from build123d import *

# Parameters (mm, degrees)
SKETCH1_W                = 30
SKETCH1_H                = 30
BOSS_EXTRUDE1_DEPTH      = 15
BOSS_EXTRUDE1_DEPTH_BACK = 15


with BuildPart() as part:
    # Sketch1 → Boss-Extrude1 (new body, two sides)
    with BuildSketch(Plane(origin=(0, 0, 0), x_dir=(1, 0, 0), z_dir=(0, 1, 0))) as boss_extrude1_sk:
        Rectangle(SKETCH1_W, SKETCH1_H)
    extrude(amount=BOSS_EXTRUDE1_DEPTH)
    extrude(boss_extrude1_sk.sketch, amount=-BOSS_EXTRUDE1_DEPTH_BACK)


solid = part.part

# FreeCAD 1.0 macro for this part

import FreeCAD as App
import Part
import Sketcher

V = App.Vector


def add_polygon(sketch, points):
    """Adds a closed chain of lines whose ends are joined by coincident constraints."""
    first, n = sketch.GeometryCount, len(points)
    for a, b in zip(points, points[1:] + points[:1]):
        sketch.addGeometry(Part.LineSegment(App.Vector(*a, 0), App.Vector(*b, 0)), False)
    for i in range(n):
        sketch.addConstraint(Sketcher.Constraint("Coincident", first + i, 2, first + (i + 1) % n, 1))

doc = App.newDocument("Part")
body = doc.addObject("PartDesign::Body", "Body")

# Sketch on XZ plane
sketch1 = body.newObject("Sketcher::SketchObject", "Sketch")
sketch1.AttachmentSupport = (doc.getObject("XZ_Plane"), [""])
sketch1.MapMode = "FlatFace"
add_polygon(sketch1, [(-15, -15), (-15, 15), (15, 15), (15, -15)])  # lines 0-3
sketch1.addConstraint([
    Sketcher.Constraint("Vertical", 0),
    Sketcher.Constraint("Horizontal", 1),
    Sketcher.Constraint("Vertical", 2),
    Sketcher.Constraint("Horizontal", 3),
    Sketcher.Constraint("Symmetric", 0, 2, 2, 2, -1, 1),
    Sketcher.Constraint("Equal", 3, 0),
    Sketcher.Constraint("DistanceX", 1, 1, 1, 2, 30.0),
])
pad1 = body.newObject("PartDesign::Pad", "Pad")
pad1.Profile = sketch1
pad1.Type = "TwoLengths"
pad1.Length = 15
pad1.Length2 = 15
pad1.Reversed = True

doc.recompute()
